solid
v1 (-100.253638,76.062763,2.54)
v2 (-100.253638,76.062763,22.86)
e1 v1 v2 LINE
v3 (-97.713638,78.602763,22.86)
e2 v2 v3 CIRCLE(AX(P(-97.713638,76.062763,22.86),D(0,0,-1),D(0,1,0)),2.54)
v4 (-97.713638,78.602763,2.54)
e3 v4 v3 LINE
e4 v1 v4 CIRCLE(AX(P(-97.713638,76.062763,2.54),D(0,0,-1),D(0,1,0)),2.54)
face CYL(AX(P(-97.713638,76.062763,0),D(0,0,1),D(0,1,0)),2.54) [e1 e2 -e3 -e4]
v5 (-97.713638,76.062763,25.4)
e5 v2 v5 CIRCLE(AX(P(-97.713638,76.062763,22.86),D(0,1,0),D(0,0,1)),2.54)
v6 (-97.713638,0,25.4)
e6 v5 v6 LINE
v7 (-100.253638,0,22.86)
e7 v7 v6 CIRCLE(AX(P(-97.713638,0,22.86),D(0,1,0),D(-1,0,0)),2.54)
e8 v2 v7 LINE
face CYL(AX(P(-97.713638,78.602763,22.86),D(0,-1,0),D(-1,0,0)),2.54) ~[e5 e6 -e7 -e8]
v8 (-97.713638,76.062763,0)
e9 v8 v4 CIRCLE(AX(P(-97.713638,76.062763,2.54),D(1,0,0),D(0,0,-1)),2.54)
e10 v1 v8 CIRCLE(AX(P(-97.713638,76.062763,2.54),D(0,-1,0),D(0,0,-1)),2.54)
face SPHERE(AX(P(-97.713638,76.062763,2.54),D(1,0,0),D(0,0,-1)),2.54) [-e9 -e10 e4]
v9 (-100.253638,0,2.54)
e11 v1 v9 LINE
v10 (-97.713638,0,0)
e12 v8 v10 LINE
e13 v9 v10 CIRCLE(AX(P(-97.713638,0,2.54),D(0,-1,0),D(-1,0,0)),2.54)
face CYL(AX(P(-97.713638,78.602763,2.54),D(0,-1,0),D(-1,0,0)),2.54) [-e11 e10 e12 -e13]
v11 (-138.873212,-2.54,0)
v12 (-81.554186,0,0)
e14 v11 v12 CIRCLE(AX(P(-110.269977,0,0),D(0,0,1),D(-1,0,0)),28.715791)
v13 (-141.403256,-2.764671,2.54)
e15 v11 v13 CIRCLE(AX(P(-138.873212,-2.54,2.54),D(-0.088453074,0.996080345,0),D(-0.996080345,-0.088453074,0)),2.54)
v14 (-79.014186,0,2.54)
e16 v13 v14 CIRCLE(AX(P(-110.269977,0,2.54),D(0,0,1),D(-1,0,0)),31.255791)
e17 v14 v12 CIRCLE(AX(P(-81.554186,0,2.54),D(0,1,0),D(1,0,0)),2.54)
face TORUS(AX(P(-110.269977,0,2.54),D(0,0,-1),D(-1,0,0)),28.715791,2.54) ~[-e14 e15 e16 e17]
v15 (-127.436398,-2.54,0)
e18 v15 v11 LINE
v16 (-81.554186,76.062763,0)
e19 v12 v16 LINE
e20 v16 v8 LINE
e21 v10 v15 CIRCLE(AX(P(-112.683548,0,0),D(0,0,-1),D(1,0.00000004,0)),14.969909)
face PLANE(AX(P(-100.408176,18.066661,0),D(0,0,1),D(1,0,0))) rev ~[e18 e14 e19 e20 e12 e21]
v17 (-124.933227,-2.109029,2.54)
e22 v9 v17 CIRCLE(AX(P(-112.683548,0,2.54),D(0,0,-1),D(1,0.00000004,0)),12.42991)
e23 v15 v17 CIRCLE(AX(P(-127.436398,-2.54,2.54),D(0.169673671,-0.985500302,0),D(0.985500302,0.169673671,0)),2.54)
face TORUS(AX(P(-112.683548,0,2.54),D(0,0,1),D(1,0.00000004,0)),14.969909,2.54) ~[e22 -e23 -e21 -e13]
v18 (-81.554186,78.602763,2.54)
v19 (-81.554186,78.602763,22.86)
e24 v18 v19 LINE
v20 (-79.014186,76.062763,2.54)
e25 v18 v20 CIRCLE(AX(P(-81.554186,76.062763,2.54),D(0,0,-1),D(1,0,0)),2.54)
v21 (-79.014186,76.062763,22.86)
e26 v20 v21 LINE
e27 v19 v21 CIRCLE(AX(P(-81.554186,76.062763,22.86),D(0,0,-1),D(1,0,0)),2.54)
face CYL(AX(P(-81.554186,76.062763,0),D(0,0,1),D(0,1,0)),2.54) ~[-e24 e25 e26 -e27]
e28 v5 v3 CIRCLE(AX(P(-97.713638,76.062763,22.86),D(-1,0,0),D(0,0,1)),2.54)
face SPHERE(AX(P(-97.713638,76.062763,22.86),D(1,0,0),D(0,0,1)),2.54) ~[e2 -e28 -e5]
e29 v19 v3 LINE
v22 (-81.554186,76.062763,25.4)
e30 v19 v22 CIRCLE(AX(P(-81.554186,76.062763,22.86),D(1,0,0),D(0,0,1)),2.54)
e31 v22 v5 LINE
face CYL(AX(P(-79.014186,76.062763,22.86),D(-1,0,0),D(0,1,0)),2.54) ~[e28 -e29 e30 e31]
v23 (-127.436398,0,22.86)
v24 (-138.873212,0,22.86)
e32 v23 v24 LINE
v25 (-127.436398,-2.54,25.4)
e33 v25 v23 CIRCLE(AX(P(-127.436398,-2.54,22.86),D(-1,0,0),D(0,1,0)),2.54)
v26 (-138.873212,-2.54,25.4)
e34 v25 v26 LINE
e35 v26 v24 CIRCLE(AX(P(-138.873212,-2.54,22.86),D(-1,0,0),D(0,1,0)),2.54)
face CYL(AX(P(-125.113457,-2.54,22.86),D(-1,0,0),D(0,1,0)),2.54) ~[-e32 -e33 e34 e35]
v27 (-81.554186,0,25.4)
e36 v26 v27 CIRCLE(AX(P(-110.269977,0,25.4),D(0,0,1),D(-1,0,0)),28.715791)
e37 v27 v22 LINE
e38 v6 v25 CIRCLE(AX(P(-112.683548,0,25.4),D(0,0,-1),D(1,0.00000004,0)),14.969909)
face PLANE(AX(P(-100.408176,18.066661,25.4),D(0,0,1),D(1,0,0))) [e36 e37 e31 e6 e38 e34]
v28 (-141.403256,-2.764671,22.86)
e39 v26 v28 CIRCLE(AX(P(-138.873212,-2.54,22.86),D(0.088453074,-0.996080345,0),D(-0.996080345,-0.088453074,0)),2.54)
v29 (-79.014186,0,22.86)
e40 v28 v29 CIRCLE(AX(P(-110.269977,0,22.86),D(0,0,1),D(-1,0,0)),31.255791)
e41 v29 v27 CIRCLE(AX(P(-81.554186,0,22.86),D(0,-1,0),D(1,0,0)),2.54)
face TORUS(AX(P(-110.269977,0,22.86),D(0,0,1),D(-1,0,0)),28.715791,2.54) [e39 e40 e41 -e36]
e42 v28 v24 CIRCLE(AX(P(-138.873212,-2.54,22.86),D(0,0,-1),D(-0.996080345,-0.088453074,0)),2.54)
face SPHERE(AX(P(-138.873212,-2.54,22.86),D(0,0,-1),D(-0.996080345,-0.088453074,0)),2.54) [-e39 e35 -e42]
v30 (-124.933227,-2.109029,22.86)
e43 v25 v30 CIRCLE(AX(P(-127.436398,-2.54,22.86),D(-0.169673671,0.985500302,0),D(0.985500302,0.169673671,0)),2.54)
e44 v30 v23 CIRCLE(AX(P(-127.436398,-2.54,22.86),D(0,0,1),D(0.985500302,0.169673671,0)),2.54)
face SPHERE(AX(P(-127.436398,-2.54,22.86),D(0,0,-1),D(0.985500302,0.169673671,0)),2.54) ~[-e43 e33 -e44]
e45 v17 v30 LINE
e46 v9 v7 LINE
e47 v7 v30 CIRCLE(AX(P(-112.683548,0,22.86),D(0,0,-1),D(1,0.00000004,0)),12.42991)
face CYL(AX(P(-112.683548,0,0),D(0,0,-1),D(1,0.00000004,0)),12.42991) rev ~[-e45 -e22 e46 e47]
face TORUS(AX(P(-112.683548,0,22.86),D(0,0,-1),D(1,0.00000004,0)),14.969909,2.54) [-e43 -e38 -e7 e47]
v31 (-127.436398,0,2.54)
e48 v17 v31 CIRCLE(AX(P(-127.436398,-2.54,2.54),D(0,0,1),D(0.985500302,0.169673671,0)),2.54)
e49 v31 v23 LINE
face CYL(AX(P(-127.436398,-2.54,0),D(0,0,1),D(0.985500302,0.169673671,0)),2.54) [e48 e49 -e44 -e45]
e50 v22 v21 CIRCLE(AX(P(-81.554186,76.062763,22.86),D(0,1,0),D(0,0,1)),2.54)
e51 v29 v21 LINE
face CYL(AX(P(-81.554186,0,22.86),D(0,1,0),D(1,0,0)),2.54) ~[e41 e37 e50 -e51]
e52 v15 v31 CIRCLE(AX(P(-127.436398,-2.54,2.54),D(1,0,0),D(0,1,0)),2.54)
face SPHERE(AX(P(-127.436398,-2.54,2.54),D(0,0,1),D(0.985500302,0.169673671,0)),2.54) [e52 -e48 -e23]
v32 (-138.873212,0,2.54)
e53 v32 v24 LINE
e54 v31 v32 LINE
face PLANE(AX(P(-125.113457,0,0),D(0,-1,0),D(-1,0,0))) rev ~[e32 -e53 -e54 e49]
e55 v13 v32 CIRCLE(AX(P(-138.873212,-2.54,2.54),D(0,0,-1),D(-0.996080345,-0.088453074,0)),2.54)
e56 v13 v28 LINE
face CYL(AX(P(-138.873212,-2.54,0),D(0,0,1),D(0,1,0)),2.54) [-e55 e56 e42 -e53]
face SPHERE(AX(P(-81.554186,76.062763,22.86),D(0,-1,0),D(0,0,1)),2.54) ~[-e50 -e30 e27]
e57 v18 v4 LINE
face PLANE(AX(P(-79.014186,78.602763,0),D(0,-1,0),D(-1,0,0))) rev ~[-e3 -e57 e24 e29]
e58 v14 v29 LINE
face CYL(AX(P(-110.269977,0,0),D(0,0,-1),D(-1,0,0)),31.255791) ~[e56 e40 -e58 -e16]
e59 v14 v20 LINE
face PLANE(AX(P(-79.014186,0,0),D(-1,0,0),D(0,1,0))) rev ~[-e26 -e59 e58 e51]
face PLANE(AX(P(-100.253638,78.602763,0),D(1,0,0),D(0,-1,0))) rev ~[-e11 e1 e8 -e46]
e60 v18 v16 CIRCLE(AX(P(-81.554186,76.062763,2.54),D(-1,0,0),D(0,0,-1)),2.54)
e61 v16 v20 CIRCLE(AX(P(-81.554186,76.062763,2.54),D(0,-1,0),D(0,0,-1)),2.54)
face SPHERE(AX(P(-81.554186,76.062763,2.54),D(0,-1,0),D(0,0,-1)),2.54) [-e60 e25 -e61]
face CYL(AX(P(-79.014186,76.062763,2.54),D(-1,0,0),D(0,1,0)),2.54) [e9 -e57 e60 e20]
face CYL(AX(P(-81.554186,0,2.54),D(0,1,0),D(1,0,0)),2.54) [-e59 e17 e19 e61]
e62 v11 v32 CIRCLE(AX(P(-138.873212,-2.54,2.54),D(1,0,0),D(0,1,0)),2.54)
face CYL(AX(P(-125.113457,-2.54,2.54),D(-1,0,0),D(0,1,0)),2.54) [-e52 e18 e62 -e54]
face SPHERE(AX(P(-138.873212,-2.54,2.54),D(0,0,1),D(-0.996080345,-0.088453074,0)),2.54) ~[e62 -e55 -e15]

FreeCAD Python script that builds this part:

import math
import FreeCAD as App
import Part
import Sketcher
from FreeCAD import Vector
Q = App.Units.Quantity

doc = App.newDocument("Part")
body = doc.addObject("PartDesign::Body", "Body")

sketch1 = body.newObject("Sketcher::SketchObject", "Sketch")
sketch1.AttachmentSupport = (doc.getObject("XY_Plane"), [""])
sketch1.MapMode = "FlatFace"
sketch1.addGeometry(Part.LineSegment(Vector(-79, 79, 0), Vector(-100, 79, 0)), False)
sketch1.addGeometry(Part.LineSegment(Vector(-100, 79, 0), Vector(-100, 0, 0)), False)
sketch1.addGeometry(Part.ArcOfCircle(Part.Circle(Vector(-113, 0, 0), Vector(0, 0, 1), 12), math.radians(180), math.radians(360)), False)
sketch1.addGeometry(Part.LineSegment(Vector(-125, 0, 0), Vector(-142, 0, 0)), False)
sketch1.addGeometry(Part.ArcOfCircle(Part.Circle(Vector(-110, 0, 0), Vector(0, 0, 1), 31), math.radians(180), math.radians(360)), False)
sketch1.addGeometry(Part.LineSegment(Vector(-79, 0, 0), Vector(-79, 79, 0)), False)
sketch1.addConstraint(Sketcher.Constraint("Coincident", 0, 2, 1, 1))
sketch1.addConstraint(Sketcher.Constraint("Tangent", 1, 2, 2, 2))
sketch1.addConstraint(Sketcher.Constraint("Coincident", 2, 1, 3, 1))
sketch1.addConstraint(Sketcher.Constraint("Coincident", 3, 2, 4, 1))
sketch1.addConstraint(Sketcher.Constraint("Tangent", 4, 2, 5, 1))
sketch1.addConstraint(Sketcher.Constraint("Coincident", 5, 2, 0, 1))
sketch1.addConstraint(Sketcher.Constraint("Horizontal", 0))
sketch1.addConstraint(Sketcher.Constraint("Vertical", 1))
sketch1.addConstraint(Sketcher.Constraint("Horizontal", 3))
sketch1.addConstraint(Sketcher.Constraint("Vertical", 5))
sketch1.addConstraint(Sketcher.Constraint("PointOnObject", 2, 3, -1))
sketch1.addConstraint(Sketcher.Constraint("PointOnObject", 4, 3, -1))
sketch1.addConstraint(Sketcher.Constraint("PointOnObject", 2, 1, -1))
sketch1.addConstraint(Sketcher.Constraint("Radius", 2, 12.42991))
sketch1.addConstraint(Sketcher.Constraint("Radius", 4, 31.255791))
sketch1.addConstraint(Sketcher.Constraint("DistanceX", 0, 2, 0, 1, 21.239452))
sketch1.addConstraint(Sketcher.Constraint("DistanceY", 1, 2, 1, 1, 78.602763))
sketch1.addConstraint(Sketcher.Constraint("DistanceX", 3, 2, -1, 1, 141.525768))
pad1 = body.newObject("PartDesign::Pad", "Pad")
pad1.Profile = sketch1
pad1.Length = Q("1 in")
doc.recompute()

fillet = body.newObject("PartDesign::Fillet", "Fillet")
fillet.Base = (pad1, ["Edge1"])
fillet.UseAllEdges = True
fillet.Radius = Q("0.1 in")

doc.recompute()
